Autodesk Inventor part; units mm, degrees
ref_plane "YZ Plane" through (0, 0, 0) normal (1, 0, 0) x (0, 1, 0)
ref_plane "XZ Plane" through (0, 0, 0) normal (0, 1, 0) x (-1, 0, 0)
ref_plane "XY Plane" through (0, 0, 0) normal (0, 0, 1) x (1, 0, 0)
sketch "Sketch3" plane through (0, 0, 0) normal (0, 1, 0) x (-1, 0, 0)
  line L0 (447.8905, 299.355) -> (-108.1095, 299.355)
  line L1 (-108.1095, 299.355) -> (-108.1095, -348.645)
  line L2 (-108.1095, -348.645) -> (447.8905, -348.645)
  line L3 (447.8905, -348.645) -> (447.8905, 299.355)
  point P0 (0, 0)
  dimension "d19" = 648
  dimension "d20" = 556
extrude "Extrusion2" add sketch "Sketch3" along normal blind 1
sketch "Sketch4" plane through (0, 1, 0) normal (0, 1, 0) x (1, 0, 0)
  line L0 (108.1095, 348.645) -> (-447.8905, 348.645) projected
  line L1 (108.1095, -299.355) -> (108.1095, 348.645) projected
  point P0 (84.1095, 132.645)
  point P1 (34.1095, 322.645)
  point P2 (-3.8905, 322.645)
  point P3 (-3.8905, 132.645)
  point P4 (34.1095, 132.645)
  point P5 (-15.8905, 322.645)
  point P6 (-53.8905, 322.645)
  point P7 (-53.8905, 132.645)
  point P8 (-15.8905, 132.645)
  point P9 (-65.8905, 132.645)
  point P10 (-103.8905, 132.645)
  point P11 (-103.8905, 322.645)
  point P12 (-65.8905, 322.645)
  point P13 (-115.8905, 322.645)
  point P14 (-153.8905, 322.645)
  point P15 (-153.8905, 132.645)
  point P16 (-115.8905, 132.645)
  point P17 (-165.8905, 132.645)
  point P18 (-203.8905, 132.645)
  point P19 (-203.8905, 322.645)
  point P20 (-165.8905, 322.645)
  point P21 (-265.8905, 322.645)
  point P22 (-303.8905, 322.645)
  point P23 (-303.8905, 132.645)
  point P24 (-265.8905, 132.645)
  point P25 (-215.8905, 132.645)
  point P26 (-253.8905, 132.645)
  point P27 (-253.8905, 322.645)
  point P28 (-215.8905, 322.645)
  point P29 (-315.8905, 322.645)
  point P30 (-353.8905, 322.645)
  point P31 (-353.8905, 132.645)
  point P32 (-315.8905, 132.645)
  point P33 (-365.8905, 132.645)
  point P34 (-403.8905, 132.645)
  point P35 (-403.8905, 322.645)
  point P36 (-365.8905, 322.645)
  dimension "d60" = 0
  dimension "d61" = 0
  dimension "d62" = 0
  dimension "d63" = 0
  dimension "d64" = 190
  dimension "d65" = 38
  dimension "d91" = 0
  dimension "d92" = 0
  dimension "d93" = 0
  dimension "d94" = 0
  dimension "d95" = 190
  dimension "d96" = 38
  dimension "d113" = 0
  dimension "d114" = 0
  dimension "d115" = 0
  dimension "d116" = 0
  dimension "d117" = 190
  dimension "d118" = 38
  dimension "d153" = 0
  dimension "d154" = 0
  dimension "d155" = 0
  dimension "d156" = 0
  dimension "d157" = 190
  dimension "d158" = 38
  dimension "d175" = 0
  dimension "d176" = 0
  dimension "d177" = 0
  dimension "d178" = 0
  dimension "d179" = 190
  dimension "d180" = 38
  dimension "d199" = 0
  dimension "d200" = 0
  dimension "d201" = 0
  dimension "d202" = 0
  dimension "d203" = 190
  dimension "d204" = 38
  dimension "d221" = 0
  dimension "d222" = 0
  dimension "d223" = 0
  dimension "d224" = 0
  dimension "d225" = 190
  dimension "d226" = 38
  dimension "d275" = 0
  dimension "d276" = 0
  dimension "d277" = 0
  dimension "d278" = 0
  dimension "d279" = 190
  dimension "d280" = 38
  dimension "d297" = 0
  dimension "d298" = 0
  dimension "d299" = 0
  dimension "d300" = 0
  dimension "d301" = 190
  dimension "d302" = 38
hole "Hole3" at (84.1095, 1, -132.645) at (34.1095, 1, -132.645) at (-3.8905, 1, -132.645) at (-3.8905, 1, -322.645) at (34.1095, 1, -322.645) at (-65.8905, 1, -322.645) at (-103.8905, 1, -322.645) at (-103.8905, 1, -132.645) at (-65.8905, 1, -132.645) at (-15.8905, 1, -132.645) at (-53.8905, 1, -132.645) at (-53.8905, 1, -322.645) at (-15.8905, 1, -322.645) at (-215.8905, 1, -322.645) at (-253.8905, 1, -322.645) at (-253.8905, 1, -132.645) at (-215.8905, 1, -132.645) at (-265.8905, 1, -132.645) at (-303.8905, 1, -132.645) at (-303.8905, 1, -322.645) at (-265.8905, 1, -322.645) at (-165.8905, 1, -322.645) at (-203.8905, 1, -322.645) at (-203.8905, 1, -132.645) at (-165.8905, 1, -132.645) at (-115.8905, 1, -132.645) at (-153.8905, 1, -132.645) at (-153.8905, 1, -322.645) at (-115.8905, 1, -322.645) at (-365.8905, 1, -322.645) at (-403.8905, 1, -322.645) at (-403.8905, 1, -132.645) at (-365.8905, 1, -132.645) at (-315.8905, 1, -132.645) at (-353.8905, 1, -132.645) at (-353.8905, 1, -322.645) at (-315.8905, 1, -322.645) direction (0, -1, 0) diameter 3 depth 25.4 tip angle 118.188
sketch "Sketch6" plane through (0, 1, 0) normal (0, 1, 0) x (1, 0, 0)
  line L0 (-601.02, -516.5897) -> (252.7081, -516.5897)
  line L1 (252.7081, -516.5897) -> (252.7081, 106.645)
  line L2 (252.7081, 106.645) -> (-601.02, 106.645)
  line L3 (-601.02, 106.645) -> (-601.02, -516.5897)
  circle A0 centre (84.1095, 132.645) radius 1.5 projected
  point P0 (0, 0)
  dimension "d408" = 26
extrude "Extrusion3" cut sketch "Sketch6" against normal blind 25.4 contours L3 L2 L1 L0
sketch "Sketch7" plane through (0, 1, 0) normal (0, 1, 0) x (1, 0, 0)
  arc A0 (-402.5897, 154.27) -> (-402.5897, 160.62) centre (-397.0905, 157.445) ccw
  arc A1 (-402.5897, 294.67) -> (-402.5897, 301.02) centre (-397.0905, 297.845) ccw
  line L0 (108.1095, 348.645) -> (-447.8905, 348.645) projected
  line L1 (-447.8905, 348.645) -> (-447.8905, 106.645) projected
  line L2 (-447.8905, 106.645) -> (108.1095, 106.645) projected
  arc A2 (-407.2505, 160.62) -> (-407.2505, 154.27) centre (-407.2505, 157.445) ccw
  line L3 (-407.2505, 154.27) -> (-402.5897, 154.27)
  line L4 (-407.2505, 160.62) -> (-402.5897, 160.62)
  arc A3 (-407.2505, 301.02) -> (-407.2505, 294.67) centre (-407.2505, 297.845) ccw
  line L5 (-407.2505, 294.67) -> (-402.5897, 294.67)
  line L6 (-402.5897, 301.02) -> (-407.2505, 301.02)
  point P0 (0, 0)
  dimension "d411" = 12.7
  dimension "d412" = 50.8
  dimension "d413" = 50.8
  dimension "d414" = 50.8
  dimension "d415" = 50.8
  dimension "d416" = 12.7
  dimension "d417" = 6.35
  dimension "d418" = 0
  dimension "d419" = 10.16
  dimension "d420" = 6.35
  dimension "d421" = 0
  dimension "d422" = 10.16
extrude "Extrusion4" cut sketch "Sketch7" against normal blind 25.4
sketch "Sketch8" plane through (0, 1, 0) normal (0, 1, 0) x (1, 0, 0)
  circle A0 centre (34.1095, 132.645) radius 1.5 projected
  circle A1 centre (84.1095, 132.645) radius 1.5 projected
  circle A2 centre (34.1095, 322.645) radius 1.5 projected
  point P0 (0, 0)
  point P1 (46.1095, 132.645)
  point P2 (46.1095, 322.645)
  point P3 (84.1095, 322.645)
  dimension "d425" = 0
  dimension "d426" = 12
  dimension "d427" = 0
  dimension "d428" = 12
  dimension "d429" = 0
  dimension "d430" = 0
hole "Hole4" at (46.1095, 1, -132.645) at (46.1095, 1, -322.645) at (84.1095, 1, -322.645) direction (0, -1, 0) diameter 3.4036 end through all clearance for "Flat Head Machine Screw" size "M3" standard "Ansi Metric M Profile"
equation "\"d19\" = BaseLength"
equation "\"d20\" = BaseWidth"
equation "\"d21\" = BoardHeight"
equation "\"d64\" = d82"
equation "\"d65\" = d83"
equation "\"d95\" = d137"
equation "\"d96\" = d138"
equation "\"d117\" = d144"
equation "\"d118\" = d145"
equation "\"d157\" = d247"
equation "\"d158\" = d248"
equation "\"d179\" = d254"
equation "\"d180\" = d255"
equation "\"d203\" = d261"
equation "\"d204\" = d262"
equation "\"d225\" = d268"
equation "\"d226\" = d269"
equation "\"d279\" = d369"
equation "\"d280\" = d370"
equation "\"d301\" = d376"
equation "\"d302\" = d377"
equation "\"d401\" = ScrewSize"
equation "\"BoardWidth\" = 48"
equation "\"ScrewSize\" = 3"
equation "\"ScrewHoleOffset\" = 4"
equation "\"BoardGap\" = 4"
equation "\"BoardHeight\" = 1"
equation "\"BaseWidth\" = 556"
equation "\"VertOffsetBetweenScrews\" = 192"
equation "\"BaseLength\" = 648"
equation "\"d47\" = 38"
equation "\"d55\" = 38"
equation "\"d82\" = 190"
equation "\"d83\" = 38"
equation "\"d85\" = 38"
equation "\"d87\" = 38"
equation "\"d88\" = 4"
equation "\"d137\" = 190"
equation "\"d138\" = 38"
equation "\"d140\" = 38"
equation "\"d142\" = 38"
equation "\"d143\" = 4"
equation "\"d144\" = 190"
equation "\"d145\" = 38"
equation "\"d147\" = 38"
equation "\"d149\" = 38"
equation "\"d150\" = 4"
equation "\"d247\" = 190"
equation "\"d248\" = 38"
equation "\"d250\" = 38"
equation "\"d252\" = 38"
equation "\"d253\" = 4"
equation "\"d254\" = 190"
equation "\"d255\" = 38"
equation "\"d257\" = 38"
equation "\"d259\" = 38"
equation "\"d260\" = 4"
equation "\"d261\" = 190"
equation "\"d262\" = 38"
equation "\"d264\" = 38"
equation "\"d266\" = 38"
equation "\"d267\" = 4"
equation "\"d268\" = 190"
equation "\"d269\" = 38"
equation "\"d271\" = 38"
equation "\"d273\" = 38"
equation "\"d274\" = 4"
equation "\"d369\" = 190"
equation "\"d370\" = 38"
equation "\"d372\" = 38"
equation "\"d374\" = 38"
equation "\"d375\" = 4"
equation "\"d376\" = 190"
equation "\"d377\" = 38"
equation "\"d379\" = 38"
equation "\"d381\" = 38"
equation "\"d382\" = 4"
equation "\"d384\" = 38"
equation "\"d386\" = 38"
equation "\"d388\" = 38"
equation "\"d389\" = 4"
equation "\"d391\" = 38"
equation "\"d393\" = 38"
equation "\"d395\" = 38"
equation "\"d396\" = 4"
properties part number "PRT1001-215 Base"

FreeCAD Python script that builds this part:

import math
import FreeCAD as App
import Part
import Sketcher
Q = App.Units.Quantity

doc = App.newDocument("Part")
params = doc.addObject("Spreadsheet::Sheet", "Params")
for row, (alias, value) in enumerate([
    ("pad1_length", "1 mm"),
    ("hole_diameter", "0.1181102 in"),
    ("hole_depth", "1 in"),
    ("pocket1_length", "1 in"),
    ("sketch4_radius", "0.25 in"),
    ("sketch4_radius2", "0.125 in"),
    ("pocket2_length", "1 in"),
    ("sketch5_diameter", "0.134 in"),
    ("hole2_diameter", "0.134 in"),
], start=1):
    params.set(f"A{row}", alias)
    params.set(f"B{row}", "=" + value)
    params.setAlias(f"B{row}", alias)

body = doc.addObject("PartDesign::Body", "Body")

sketch1 = body.newObject("Sketcher::SketchObject", "Sketch")
sketch1.AttachmentSupport = (doc.getObject("XZ_Plane"), [""])
sketch1.MapMode = "FlatFace"
sketch1.addGeometry([
    Part.LineSegment(App.Vector(-448, -349, 0), App.Vector(-448, 299, 0)),
    Part.LineSegment(App.Vector(-448, 299, 0), App.Vector(108, 299, 0)),
    Part.LineSegment(App.Vector(108, 299, 0), App.Vector(108, -349, 0)),
    Part.LineSegment(App.Vector(108, -349, 0), App.Vector(-448, -349, 0)),
], False)
sketch1.addConstraint([
    Sketcher.Constraint("Coincident", 0, 2, 1, 1),
    Sketcher.Constraint("Coincident", 1, 2, 2, 1),
    Sketcher.Constraint("Coincident", 2, 2, 3, 1),
    Sketcher.Constraint("Coincident", 3, 2, 0, 1),
    Sketcher.Constraint("Vertical", 0),
    Sketcher.Constraint("Horizontal", 1),
    Sketcher.Constraint("Vertical", 2),
    Sketcher.Constraint("Horizontal", 3),
    Sketcher.Constraint("DistanceY", 0, 1, 0, 2, Q("25.5118 in")),
    Sketcher.Constraint("DistanceX", 1, 1, 1, 2, Q("556 mm")),
    Sketcher.Constraint("DistanceX", 0, 2, -1, 1, Q("447.8905 mm")),
    Sketcher.Constraint("DistanceY", -1, 1, 0, 2, Q("299.355 mm")),
])
pad1 = body.newObject("PartDesign::Pad", "Pad")
pad1.Profile = sketch1
pad1.setExpression("Length", "Params.pad1_length")
pad1.Reversed = True

sketch2 = body.newObject("Sketcher::SketchObject", "Sketch001")
sketch2.AttachmentSupport = (doc.getObject("XZ_Plane"), [""])
sketch2.MapMode = "FlatFace"
sketch2.AttachmentOffset = App.Placement(App.Vector(0, 0, -1), App.Rotation())
sketch2.addGeometry([
    Part.Circle(App.Vector(84.1, -132.6, 0), App.Vector(0, 0, 1), 1.5),
    Part.Circle(App.Vector(34.1, -132.6, 0), App.Vector(0, 0, 1), 1.5),
    Part.Circle(App.Vector(-3.9, -132.6, 0), App.Vector(0, 0, 1), 1.5),
    Part.Circle(App.Vector(-3.9, -322.6, 0), App.Vector(0, 0, 1), 1.5),
    Part.Circle(App.Vector(34.1, -322.6, 0), App.Vector(0, 0, 1), 1.5),
    Part.Circle(App.Vector(-65.9, -322.6, 0), App.Vector(0, 0, 1), 1.5),
    Part.Circle(App.Vector(-103.9, -322.6, 0), App.Vector(0, 0, 1), 1.5),
    Part.Circle(App.Vector(-103.9, -132.6, 0), App.Vector(0, 0, 1), 1.5),
    Part.Circle(App.Vector(-65.9, -132.6, 0), App.Vector(0, 0, 1), 1.5),
    Part.Circle(App.Vector(-15.9, -132.6, 0), App.Vector(0, 0, 1), 1.5),
    Part.Circle(App.Vector(-53.9, -132.6, 0), App.Vector(0, 0, 1), 1.5),
    Part.Circle(App.Vector(-53.9, -322.6, 0), App.Vector(0, 0, 1), 1.5),
    Part.Circle(App.Vector(-15.9, -322.6, 0), App.Vector(0, 0, 1), 1.5),
    Part.Circle(App.Vector(-215.9, -322.6, 0), App.Vector(0, 0, 1), 1.5),
    Part.Circle(App.Vector(-253.9, -322.6, 0), App.Vector(0, 0, 1), 1.5),
    Part.Circle(App.Vector(-253.9, -132.6, 0), App.Vector(0, 0, 1), 1.5),
    Part.Circle(App.Vector(-215.9, -132.6, 0), App.Vector(0, 0, 1), 1.5),
    Part.Circle(App.Vector(-265.9, -132.6, 0), App.Vector(0, 0, 1), 1.5),
    Part.Circle(App.Vector(-303.9, -132.6, 0), App.Vector(0, 0, 1), 1.5),
    Part.Circle(App.Vector(-303.9, -322.6, 0), App.Vector(0, 0, 1), 1.5),
    Part.Circle(App.Vector(-265.9, -322.6, 0), App.Vector(0, 0, 1), 1.5),
    Part.Circle(App.Vector(-165.9, -322.6, 0), App.Vector(0, 0, 1), 1.5),
    Part.Circle(App.Vector(-203.9, -322.6, 0), App.Vector(0, 0, 1), 1.5),
    Part.Circle(App.Vector(-203.9, -132.6, 0), App.Vector(0, 0, 1), 1.5),
    Part.Circle(App.Vector(-165.9, -132.6, 0), App.Vector(0, 0, 1), 1.5),
    Part.Circle(App.Vector(-115.9, -132.6, 0), App.Vector(0, 0, 1), 1.5),
    Part.Circle(App.Vector(-153.9, -132.6, 0), App.Vector(0, 0, 1), 1.5),
    Part.Circle(App.Vector(-153.9, -322.6, 0), App.Vector(0, 0, 1), 1.5),
    Part.Circle(App.Vector(-115.9, -322.6, 0), App.Vector(0, 0, 1), 1.5),
    Part.Circle(App.Vector(-365.9, -322.6, 0), App.Vector(0, 0, 1), 1.5),
    Part.Circle(App.Vector(-403.9, -322.6, 0), App.Vector(0, 0, 1), 1.5),
    Part.Circle(App.Vector(-403.9, -132.6, 0), App.Vector(0, 0, 1), 1.5),
    Part.Circle(App.Vector(-365.9, -132.6, 0), App.Vector(0, 0, 1), 1.5),
    Part.Circle(App.Vector(-315.9, -132.6, 0), App.Vector(0, 0, 1), 1.5),
    Part.Circle(App.Vector(-353.9, -132.6, 0), App.Vector(0, 0, 1), 1.5),
    Part.Circle(App.Vector(-353.9, -322.6, 0), App.Vector(0, 0, 1), 1.5),
    Part.Circle(App.Vector(-315.9, -322.6, 0), App.Vector(0, 0, 1), 1.5),
], False)
sketch2.addConstraint([
    Sketcher.Constraint("Equal", 0, 1),
    Sketcher.Constraint("Equal", 1, 2),
    Sketcher.Constraint("Equal", 2, 3),
    Sketcher.Constraint("Equal", 3, 4),
    Sketcher.Constraint("Equal", 4, 5),
    Sketcher.Constraint("Equal", 5, 6),
    Sketcher.Constraint("Equal", 6, 7),
    Sketcher.Constraint("Equal", 7, 8),
    Sketcher.Constraint("Equal", 8, 9),
    Sketcher.Constraint("Equal", 9, 10),
    Sketcher.Constraint("Equal", 10, 11),
    Sketcher.Constraint("Equal", 11, 12),
    Sketcher.Constraint("Equal", 12, 13),
    Sketcher.Constraint("Equal", 13, 14),
    Sketcher.Constraint("Equal", 14, 15),
    Sketcher.Constraint("Equal", 15, 16),
    Sketcher.Constraint("Equal", 16, 17),
    Sketcher.Constraint("Equal", 17, 18),
    Sketcher.Constraint("Equal", 18, 19),
    Sketcher.Constraint("Equal", 19, 20),
    Sketcher.Constraint("Equal", 20, 21),
    Sketcher.Constraint("Equal", 21, 22),
    Sketcher.Constraint("Equal", 22, 23),
    Sketcher.Constraint("Equal", 23, 24),
    Sketcher.Constraint("Equal", 24, 25),
    Sketcher.Constraint("Equal", 25, 26),
    Sketcher.Constraint("Equal", 26, 27),
    Sketcher.Constraint("Equal", 27, 28),
    Sketcher.Constraint("Equal", 28, 29),
    Sketcher.Constraint("Equal", 29, 30),
    Sketcher.Constraint("Equal", 30, 31),
    Sketcher.Constraint("Equal", 31, 32),
    Sketcher.Constraint("Equal", 32, 33),
    Sketcher.Constraint("Equal", 33, 34),
    Sketcher.Constraint("Equal", 34, 35),
    Sketcher.Constraint("Equal", 35, 36),
    Sketcher.Constraint("Horizontal", 0, 3, 1, 3),
    Sketcher.Constraint("Horizontal", 1, 3, 2, 3),
    Sketcher.Constraint("Horizontal", 3, 3, 4, 3),
    Sketcher.Constraint("Horizontal", 4, 3, 5, 3),
    Sketcher.Constraint("Horizontal", 5, 3, 6, 3),
    Sketcher.Constraint("Horizontal", 2, 3, 7, 3),
    Sketcher.Constraint("Horizontal", 7, 3, 8, 3),
    Sketcher.Constraint("Horizontal", 8, 3, 9, 3),
    Sketcher.Constraint("Horizontal", 9, 3, 10, 3),
    Sketcher.Constraint("Horizontal", 6, 3, 11, 3),
    Sketcher.Constraint("Horizontal", 11, 3, 12, 3),
    Sketcher.Constraint("Horizontal", 12, 3, 13, 3),
    Sketcher.Constraint("Horizontal", 13, 3, 14, 3),
    Sketcher.Constraint("Horizontal", 10, 3, 15, 3),
    Sketcher.Constraint("Horizontal", 15, 3, 16, 3),
    Sketcher.Constraint("Horizontal", 16, 3, 17, 3),
    Sketcher.Constraint("Horizontal", 17, 3, 18, 3),
    Sketcher.Constraint("Horizontal", 14, 3, 19, 3),
    Sketcher.Constraint("Horizontal", 19, 3, 20, 3),
    Sketcher.Constraint("Horizontal", 20, 3, 21, 3),
    Sketcher.Constraint("Horizontal", 21, 3, 22, 3),
    Sketcher.Constraint("Horizontal", 18, 3, 23, 3),
    Sketcher.Constraint("Horizontal", 23, 3, 24, 3),
    Sketcher.Constraint("Horizontal", 24, 3, 25, 3),
    Sketcher.Constraint("Horizontal", 25, 3, 26, 3),
    Sketcher.Constraint("Horizontal", 22, 3, 27, 3),
    Sketcher.Constraint("Horizontal", 27, 3, 28, 3),
    Sketcher.Constraint("Horizontal", 28, 3, 29, 3),
    Sketcher.Constraint("Horizontal", 29, 3, 30, 3),
    Sketcher.Constraint("Horizontal", 26, 3, 31, 3),
    Sketcher.Constraint("Horizontal", 31, 3, 32, 3),
    Sketcher.Constraint("Horizontal", 32, 3, 33, 3),
    Sketcher.Constraint("Horizontal", 33, 3, 34, 3),
    Sketcher.Constraint("Horizontal", 30, 3, 35, 3),
    Sketcher.Constraint("Horizontal", 35, 3, 36, 3),
    Sketcher.Constraint("Vertical", 2, 3, 3, 3),
    Sketcher.Constraint("Vertical", 1, 3, 4, 3),
    Sketcher.Constraint("Vertical", 6, 3, 7, 3),
    Sketcher.Constraint("Vertical", 5, 3, 8, 3),
    Sketcher.Constraint("Vertical", 10, 3, 11, 3),
    Sketcher.Constraint("Vertical", 9, 3, 12, 3),
    Sketcher.Constraint("Vertical", 14, 3, 15, 3),
    Sketcher.Constraint("Vertical", 13, 3, 16, 3),
    Sketcher.Constraint("Vertical", 18, 3, 19, 3),
    Sketcher.Constraint("Vertical", 17, 3, 20, 3),
    Sketcher.Constraint("Vertical", 22, 3, 23, 3),
    Sketcher.Constraint("Vertical", 21, 3, 24, 3),
    Sketcher.Constraint("Vertical", 26, 3, 27, 3),
    Sketcher.Constraint("Vertical", 25, 3, 28, 3),
    Sketcher.Constraint("Vertical", 30, 3, 31, 3),
    Sketcher.Constraint("Vertical", 29, 3, 32, 3),
    Sketcher.Constraint("Vertical", 34, 3, 35, 3),
    Sketcher.Constraint("Vertical", 33, 3, 36, 3),
    Sketcher.Constraint("Diameter", 0, Q("0.1181 in")),
    Sketcher.Constraint("DistanceX", 5, 3, 4, 3, Q("3.937 in")),
    Sketcher.Constraint("DistanceX", 6, 3, 3, 3, Q("3.937 in")),
    Sketcher.Constraint("DistanceX", 9, 3, 0, 3, Q("3.937 in")),
    Sketcher.Constraint("DistanceX", 20, 3, 21, 3, Q("3.937 in")),
    Sketcher.Constraint("DistanceX", 21, 3, 5, 3, Q("3.937 in")),
    Sketcher.Constraint("DistanceX", 19, 3, 22, 3, Q("3.937 in")),
    Sketcher.Constraint("DistanceX", 23, 3, 7, 3, Q("3.937 in")),
    Sketcher.Constraint("DistanceX", 29, 3, 20, 3, Q("3.937 in")),
    Sketcher.Constraint("DistanceX", 30, 3, 19, 3, Q("3.937 in")),
    Sketcher.Constraint("DistanceX", 35, 3, 14, 3, Q("3.937 in")),
    Sketcher.Constraint("DistanceX", -1, 1, 0, 3, Q("3.3114 in")),
    Sketcher.Constraint("DistanceX", -1, 1, 1, 3, Q("1.3429 in")),
    Sketcher.Constraint("DistanceX", 14, 3, -1, 1, Q("9.9957 in")),
    Sketcher.Constraint("DistanceX", 18, 3, -1, 1, Q("11.9642 in")),
    Sketcher.Constraint("DistanceX", 10, 3, 2, 3, Q("1.9685 in")),
    Sketcher.Constraint("DistanceX", 13, 3, 5, 3, Q("5.9055 in")),
    Sketcher.Constraint("DistanceX", 25, 3, 8, 3, Q("1.9685 in")),
    Sketcher.Constraint("DistanceX", 26, 3, 7, 3, Q("1.9685 in")),
    Sketcher.Constraint("DistanceX", 33, 3, 17, 3, Q("1.9685 in")),
    Sketcher.Constraint("DistanceY", 0, 3, -1, 1, Q("132.645 mm")),
    Sketcher.Constraint("DistanceY", 3, 3, -1, 1, Q("322.645 mm")),
])
doc.recompute()
hole = body.newObject("PartDesign::Hole", "Hole")
hole.Profile = sketch2
hole.ThreadType = "None"
hole.setExpression("Diameter", "Params.hole_diameter")
hole.DepthType = "Dimension"
hole.setExpression("Depth", "Params.hole_depth")
hole.DrillPoint = "Angled"
hole.DrillPointAngle = 118.188
hole.Reversed = True

sketch3 = body.newObject("Sketcher::SketchObject", "Sketch002")
sketch3.AttachmentSupport = (doc.getObject("XZ_Plane"), [""])
sketch3.MapMode = "FlatFace"
sketch3.AttachmentOffset = App.Placement(App.Vector(0, 0, -1), App.Rotation())
sketch3.addGeometry([
    Part.LineSegment(App.Vector(-601, -107, 0), App.Vector(-601, 517, 0)),
    Part.LineSegment(App.Vector(-601, 517, 0), App.Vector(253, 517, 0)),
    Part.LineSegment(App.Vector(253, 517, 0), App.Vector(253, -107, 0)),
    Part.LineSegment(App.Vector(253, -107, 0), App.Vector(-601, -107, 0)),
], False)
sketch3.addConstraint([
    Sketcher.Constraint("Coincident", 0, 2, 1, 1),
    Sketcher.Constraint("Coincident", 1, 2, 2, 1),
    Sketcher.Constraint("Coincident", 2, 2, 3, 1),
    Sketcher.Constraint("Coincident", 3, 2, 0, 1),
    Sketcher.Constraint("Vertical", 0),
    Sketcher.Constraint("Horizontal", 1),
    Sketcher.Constraint("Vertical", 2),
    Sketcher.Constraint("Horizontal", 3),
    Sketcher.Constraint("DistanceY", 0, 1, 0, 2, Q("24.5368 in")),
    Sketcher.Constraint("DistanceX", 1, 1, 1, 2, Q("853.728 mm")),
    Sketcher.Constraint("DistanceX", 0, 2, -1, 1, Q("23.6622 in")),
    Sketcher.Constraint("DistanceY", -1, 1, 0, 2, Q("516.5897 mm")),
])
pocket1 = body.newObject("PartDesign::Pocket", "Pocket")
pocket1.Profile = sketch3
pocket1.setExpression("Length", "Params.pocket1_length")
pocket1.Reversed = True

sketch4 = body.newObject("Sketcher::SketchObject", "Sketch003")
sketch4.AttachmentSupport = (doc.getObject("XZ_Plane"), [""])
sketch4.MapMode = "FlatFace"
sketch4.AttachmentOffset = App.Placement(App.Vector(0, 0, -1), App.Rotation())
sketch4.addGeometry([
    Part.LineSegment(App.Vector(-407.3, -154.3, 0), App.Vector(-402.6, -154.3, 0)),
    Part.ArcOfCircle(Part.Circle(App.Vector(-397.1, -157.4, 0), App.Vector(0, 0, 1), 6.3), math.radians(-150), math.radians(150)),
    Part.LineSegment(App.Vector(-402.6, -160.6, 0), App.Vector(-407.3, -160.6, 0)),
    Part.ArcOfCircle(Part.Circle(App.Vector(-407.3, -157.4, 0), App.Vector(0, 0, 1), 3.2), math.radians(90), math.radians(270)),
    Part.LineSegment(App.Vector(-407.3, -294.7, 0), App.Vector(-402.6, -294.7, 0)),
    Part.ArcOfCircle(Part.Circle(App.Vector(-397.1, -297.8, 0), App.Vector(0, 0, 1), 6.3), math.radians(-150), math.radians(150)),
    Part.LineSegment(App.Vector(-402.6, -301, 0), App.Vector(-407.3, -301, 0)),
    Part.ArcOfCircle(Part.Circle(App.Vector(-407.3, -297.8, 0), App.Vector(0, 0, 1), 3.2), math.radians(90), math.radians(270)),
], False)
sketch4.addConstraint([
    Sketcher.Constraint("Coincident", 0, 2, 1, 2),
    Sketcher.Constraint("Coincident", 1, 1, 2, 1),
    Sketcher.Constraint("Tangent", 2, 2, 3, 2),
    Sketcher.Constraint("Tangent", 3, 1, 0, 1),
    Sketcher.Constraint("Coincident", 4, 2, 5, 2),
    Sketcher.Constraint("Coincident", 5, 1, 6, 1),
    Sketcher.Constraint("Tangent", 6, 2, 7, 2),
    Sketcher.Constraint("Tangent", 7, 1, 4, 1),
    Sketcher.Constraint("Horizontal", 0),
    Sketcher.Constraint("Horizontal", 2),
    Sketcher.Constraint("Horizontal", 4),
    Sketcher.Constraint("Horizontal", 6),
    Sketcher.Constraint("Equal", 1, 5),
    Sketcher.Constraint("Equal", 3, 7),
    Sketcher.Constraint("Horizontal", 1, 3, 3, 3),
    Sketcher.Constraint("Horizontal", 5, 3, 7, 3),
    Sketcher.Constraint("Vertical", 1, 3, 5, 3),
    Sketcher.Constraint("Vertical", 3, 3, 7, 3),
    Sketcher.Constraint("Radius", 1, Q("0.25 in")),
    Sketcher.Constraint("Radius", 3, Q("0.125 in")),
    Sketcher.Constraint("DistanceX", 3, 3, 1, 3, Q("0.4 in")),
    Sketcher.Constraint("DistanceX", 0, 2, -1, 1, Q("15.85 in")),
    Sketcher.Constraint("DistanceY", 1, 3, -1, 1, Q("157.445 mm")),
    Sketcher.Constraint("DistanceY", 5, 3, -1, 1, Q("297.845 mm")),
])
sketch4.setExpression("Constraints[18]", "Params.sketch4_radius")
sketch4.setExpression("Constraints[19]", "Params.sketch4_radius2")
pocket2 = body.newObject("PartDesign::Pocket", "Pocket001")
pocket2.Profile = sketch4
pocket2.setExpression("Length", "Params.pocket2_length")
pocket2.Reversed = True

sketch5 = body.newObject("Sketcher::SketchObject", "Sketch004")
sketch5.AttachmentSupport = (doc.getObject("XZ_Plane"), [""])
sketch5.MapMode = "FlatFace"
sketch5.AttachmentOffset = App.Placement(App.Vector(0, 0, -1), App.Rotation())
sketch5.addGeometry([
    Part.Circle(App.Vector(46.1, -132.6, 0), App.Vector(0, 0, 1), 1.7),
    Part.Circle(App.Vector(46.1, -322.6, 0), App.Vector(0, 0, 1), 1.7),
    Part.Circle(App.Vector(84.1, -322.6, 0), App.Vector(0, 0, 1), 1.7),
], False)
sketch5.addConstraint([
    Sketcher.Constraint("Equal", 0, 1),
    Sketcher.Constraint("Equal", 1, 2),
    Sketcher.Constraint("Horizontal", 1, 3, 2, 3),
    Sketcher.Constraint("Vertical", 0, 3, 1, 3),
    Sketcher.Constraint("Diameter", 0, Q("0.134 in")),
    Sketcher.Constraint("DistanceX", -1, 1, 2, 3, Q("3.3114 in")),
    Sketcher.Constraint("DistanceX", -1, 1, 0, 3, Q("46.1095 mm")),
    Sketcher.Constraint("DistanceY", 0, 3, -1, 1, Q("132.645 mm")),
    Sketcher.Constraint("DistanceY", 1, 3, -1, 1, Q("322.645 mm")),
])
sketch5.setExpression("Constraints[4]", "Params.sketch5_diameter")
doc.recompute()
hole2 = body.newObject("PartDesign::Hole", "Hole001")
hole2.Profile = sketch5
hole2.ThreadType = "None"
hole2.setExpression("Diameter", "Params.hole2_diameter")
hole2.DepthType = "ThroughAll"
hole2.Reversed = True

doc.recompute()
